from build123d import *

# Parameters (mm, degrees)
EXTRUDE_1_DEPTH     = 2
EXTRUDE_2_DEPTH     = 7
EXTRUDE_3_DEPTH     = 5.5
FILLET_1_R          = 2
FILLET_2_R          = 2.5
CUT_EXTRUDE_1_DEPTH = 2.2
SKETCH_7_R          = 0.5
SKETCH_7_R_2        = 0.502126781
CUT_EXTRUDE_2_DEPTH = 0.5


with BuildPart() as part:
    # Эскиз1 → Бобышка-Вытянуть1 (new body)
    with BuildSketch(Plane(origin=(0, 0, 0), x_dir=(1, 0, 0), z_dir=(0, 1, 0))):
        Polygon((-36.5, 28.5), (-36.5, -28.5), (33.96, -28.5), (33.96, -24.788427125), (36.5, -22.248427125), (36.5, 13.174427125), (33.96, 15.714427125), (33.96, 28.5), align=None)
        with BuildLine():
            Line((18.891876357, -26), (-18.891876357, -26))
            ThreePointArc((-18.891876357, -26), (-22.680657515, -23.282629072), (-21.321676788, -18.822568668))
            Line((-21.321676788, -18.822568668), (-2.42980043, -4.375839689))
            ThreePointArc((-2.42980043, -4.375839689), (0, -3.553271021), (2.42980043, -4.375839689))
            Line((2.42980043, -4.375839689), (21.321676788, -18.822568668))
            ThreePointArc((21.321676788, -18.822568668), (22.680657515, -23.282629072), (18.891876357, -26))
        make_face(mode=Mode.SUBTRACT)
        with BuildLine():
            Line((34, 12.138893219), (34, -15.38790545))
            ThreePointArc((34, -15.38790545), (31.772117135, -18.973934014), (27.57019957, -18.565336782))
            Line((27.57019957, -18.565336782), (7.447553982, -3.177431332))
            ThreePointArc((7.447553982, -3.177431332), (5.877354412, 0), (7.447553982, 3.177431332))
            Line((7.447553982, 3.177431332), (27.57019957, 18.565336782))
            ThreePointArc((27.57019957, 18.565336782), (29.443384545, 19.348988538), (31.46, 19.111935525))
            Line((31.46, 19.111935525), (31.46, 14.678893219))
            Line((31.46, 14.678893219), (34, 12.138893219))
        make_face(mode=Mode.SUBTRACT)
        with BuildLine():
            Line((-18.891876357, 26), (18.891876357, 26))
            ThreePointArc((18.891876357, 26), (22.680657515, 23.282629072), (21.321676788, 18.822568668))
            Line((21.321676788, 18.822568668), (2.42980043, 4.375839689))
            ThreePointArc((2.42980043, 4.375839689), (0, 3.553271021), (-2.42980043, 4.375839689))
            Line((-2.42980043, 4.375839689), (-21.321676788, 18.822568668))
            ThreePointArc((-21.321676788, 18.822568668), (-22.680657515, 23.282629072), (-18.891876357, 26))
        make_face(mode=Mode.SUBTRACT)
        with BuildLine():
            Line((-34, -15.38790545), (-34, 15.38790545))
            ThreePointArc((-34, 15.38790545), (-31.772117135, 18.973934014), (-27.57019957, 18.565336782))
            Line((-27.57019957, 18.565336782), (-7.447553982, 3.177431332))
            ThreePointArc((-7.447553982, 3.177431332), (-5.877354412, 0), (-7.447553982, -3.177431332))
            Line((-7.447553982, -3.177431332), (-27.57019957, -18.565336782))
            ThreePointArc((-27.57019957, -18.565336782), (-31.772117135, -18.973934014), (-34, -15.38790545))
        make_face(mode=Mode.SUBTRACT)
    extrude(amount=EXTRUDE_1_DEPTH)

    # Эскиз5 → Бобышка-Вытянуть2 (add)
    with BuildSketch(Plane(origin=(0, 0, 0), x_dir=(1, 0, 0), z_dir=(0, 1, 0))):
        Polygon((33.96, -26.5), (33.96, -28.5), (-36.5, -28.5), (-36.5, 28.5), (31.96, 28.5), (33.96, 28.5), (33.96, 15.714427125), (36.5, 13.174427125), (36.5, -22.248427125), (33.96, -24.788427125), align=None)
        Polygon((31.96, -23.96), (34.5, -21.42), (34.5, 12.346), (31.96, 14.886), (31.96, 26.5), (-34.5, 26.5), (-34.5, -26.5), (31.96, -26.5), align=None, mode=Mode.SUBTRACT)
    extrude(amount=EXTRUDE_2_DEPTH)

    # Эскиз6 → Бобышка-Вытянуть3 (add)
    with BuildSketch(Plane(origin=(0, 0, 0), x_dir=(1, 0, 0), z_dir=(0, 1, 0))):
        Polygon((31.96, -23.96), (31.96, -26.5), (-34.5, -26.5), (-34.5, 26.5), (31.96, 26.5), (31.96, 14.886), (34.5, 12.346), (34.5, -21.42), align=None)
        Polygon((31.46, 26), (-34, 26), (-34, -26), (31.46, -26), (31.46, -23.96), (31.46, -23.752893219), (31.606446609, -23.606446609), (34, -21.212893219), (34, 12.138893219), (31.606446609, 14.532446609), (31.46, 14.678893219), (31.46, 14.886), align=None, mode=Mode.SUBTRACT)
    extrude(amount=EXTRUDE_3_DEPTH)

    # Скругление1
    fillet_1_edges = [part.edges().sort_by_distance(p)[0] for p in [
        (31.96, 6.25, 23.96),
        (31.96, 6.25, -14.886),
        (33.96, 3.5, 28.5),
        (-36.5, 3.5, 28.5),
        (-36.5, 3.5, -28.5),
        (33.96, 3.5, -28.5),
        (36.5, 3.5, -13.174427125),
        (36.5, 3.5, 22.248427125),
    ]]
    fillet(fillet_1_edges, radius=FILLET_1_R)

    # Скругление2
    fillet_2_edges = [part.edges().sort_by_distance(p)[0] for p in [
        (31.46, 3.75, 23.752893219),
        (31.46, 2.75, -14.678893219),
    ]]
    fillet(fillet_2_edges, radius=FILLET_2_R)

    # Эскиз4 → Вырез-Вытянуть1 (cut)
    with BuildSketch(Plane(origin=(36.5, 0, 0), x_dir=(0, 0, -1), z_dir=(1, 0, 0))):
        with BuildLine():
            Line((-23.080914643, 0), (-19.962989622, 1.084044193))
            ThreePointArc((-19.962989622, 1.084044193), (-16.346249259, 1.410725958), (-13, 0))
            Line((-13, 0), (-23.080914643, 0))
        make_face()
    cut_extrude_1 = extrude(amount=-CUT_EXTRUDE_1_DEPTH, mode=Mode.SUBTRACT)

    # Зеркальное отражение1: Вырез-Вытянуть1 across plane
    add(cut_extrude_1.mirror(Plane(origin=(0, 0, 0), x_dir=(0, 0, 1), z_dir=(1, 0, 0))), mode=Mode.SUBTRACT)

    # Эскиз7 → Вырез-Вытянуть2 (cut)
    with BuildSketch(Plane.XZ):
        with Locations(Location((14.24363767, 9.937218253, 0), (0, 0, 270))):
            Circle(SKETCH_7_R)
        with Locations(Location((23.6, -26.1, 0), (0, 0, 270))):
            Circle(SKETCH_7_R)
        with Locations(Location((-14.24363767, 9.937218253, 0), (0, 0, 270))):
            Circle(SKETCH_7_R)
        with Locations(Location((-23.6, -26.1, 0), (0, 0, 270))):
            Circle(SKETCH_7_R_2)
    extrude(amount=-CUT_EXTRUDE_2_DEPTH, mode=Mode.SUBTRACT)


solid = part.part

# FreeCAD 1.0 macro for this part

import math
import FreeCAD as App
import Part
import Sketcher
Q = App.Units.Quantity


def edges_at(feature, points):
    """Names of the edges that pass closest to the given points."""
    edges = feature.Shape.Edges
    near = lambda p: min(range(len(edges)), key=lambda i: edges[i].distToShape(Part.Vertex(*p))[0])
    return sorted({f"Edge{near(p) + 1}" for p in points})


def add_polygon(sketch, points):
    """Adds a closed chain of lines whose ends are joined by coincident constraints."""
    first, n = sketch.GeometryCount, len(points)
    for a, b in zip(points, points[1:] + points[:1]):
        sketch.addGeometry(Part.LineSegment(App.Vector(*a, 0), App.Vector(*b, 0)), False)
    for i in range(n):
        sketch.addConstraint(Sketcher.Constraint("Coincident", first + i, 2, first + (i + 1) % n, 1))

doc = App.newDocument("Part")
params = doc.addObject("Spreadsheet::Sheet", "Params")
for row, (alias, value) in enumerate([
    ("sketch1_radius", "4 mm"),
    ("sketch1_height", "57 mm"),
    ("sketch1_width", "70.46 mm"),
    ("pad1_length", "2 mm"),
    ("sketch2_height", "57 mm"),
    ("sketch2_height2", "53 mm"),
    ("sketch2_width", "70.46 mm"),
    ("sketch2_height3", "2.54 mm"),
    ("pad2_length", "7 mm"),
    ("sketch3_height", "53 mm"),
    ("sketch3_height2", "52 mm"),
    ("sketch3_width", "66.46 mm"),
    ("sketch3_width2", "65.46 mm"),
    ("sketch3_height3", "2.54 mm"),
    ("pad3_length", "5.5 mm"),
    ("fillet_radius", "2 mm"),
    ("fillet2_radius", "2.5 mm"),
    ("sketch4_radius", "7.5 mm"),
    ("pocket1_length", "2.2 mm"),
    ("sketch5_diameter", "1 mm"),
    ("pocket2_length", "0.5 mm"),
], start=1):
    params.set(f"A{row}", alias)
    params.set(f"B{row}", "=" + value)
    params.setAlias(f"B{row}", alias)

body = doc.addObject("PartDesign::Body", "Body")

sketch1 = doc.addObject("Sketcher::SketchObject", "Sketch")
body.addObject(sketch1)
sketch1.AttachmentSupport = (doc.XZ_Plane, [""])
sketch1.MapMode = "FlatFace"
add_polygon(sketch1, [(-36.5, -28.5), (-36.5, 28.5), (34, 28.5), (34, 24.8), (36.5, 22.2), (36.5, -13.2), (34, -15.7), (34, -28.5)])
sketch1.addGeometry(Part.ArcOfCircle(Part.Circle(App.Vector(18.9, 22, 0), App.Vector(0, 0, 1), 4), math.radians(-53), math.radians(90)), False)
sketch1.addGeometry(Part.LineSegment(App.Vector(18.9, 26, 0), App.Vector(-18.9, 26, 0)), False)
sketch1.addGeometry(Part.ArcOfCircle(Part.Circle(App.Vector(-18.9, 22, 0), App.Vector(0, 0, 1), 4), math.radians(90), math.radians(233)), False)
sketch1.addGeometry(Part.LineSegment(App.Vector(-21.3, 18.8, 0), App.Vector(-2.4, 4.4, 0)), False)
sketch1.addGeometry(Part.ArcOfCircle(Part.Circle(App.Vector(0, 7.6, 0), App.Vector(0, 0, 1), 4), math.radians(-127), math.radians(-53)), False)
sketch1.addGeometry(Part.LineSegment(App.Vector(2.4, 4.4, 0), App.Vector(21.3, 18.8, 0)), False)
sketch1.addGeometry(Part.LineSegment(App.Vector(31.5, -14.7, 0), App.Vector(34, -12.1, 0)), False)
sketch1.addGeometry(Part.LineSegment(App.Vector(34, -12.1, 0), App.Vector(34, 15.4, 0)), False)
sketch1.addGeometry(Part.ArcOfCircle(Part.Circle(App.Vector(30, 15.4, 0), App.Vector(0, 0, 1), 4), math.radians(0), math.radians(127)), False)
sketch1.addGeometry(Part.LineSegment(App.Vector(27.6, 18.6, 0), App.Vector(7.4, 3.2, 0)), False)
sketch1.addGeometry(Part.ArcOfCircle(Part.Circle(App.Vector(9.9, 0, 0), App.Vector(0, 0, 1), 4), math.radians(127), math.radians(233)), False)
sketch1.addGeometry(Part.LineSegment(App.Vector(7.4, -3.2, 0), App.Vector(27.6, -18.6, 0)), False)
sketch1.addGeometry(Part.ArcOfCircle(Part.Circle(App.Vector(30, -15.4, 0), App.Vector(0, 0, 1), 4), math.radians(-127), math.radians(-69)), False)
sketch1.addGeometry(Part.LineSegment(App.Vector(31.5, -19.1, 0), App.Vector(31.5, -14.7, 0)), False)
sketch1.addGeometry(Part.ArcOfCircle(Part.Circle(App.Vector(-30, 15.4, 0), App.Vector(0, 0, 1), 4), math.radians(53), math.radians(180)), False)
sketch1.addGeometry(Part.LineSegment(App.Vector(-34, 15.4, 0), App.Vector(-34, -15.4, 0)), False)
sketch1.addGeometry(Part.ArcOfCircle(Part.Circle(App.Vector(-30, -15.4, 0), App.Vector(0, 0, 1), 4), math.radians(180), math.radians(307)), False)
sketch1.addGeometry(Part.LineSegment(App.Vector(-27.6, -18.6, 0), App.Vector(-7.4, -3.2, 0)), False)
sketch1.addGeometry(Part.ArcOfCircle(Part.Circle(App.Vector(-9.9, 0, 0), App.Vector(0, 0, 1), 4), math.radians(-53), math.radians(53)), False)
sketch1.addGeometry(Part.LineSegment(App.Vector(-7.4, 3.2, 0), App.Vector(-27.6, 18.6, 0)), False)
sketch1.addGeometry(Part.ArcOfCircle(Part.Circle(App.Vector(-18.9, -22, 0), App.Vector(0, 0, 1), 4), math.radians(127), math.radians(270)), False)
sketch1.addGeometry(Part.LineSegment(App.Vector(-18.9, -26, 0), App.Vector(18.9, -26, 0)), False)
sketch1.addGeometry(Part.ArcOfCircle(Part.Circle(App.Vector(18.9, -22, 0), App.Vector(0, 0, 1), 4), math.radians(-90), math.radians(53)), False)
sketch1.addGeometry(Part.LineSegment(App.Vector(21.3, -18.8, 0), App.Vector(2.4, -4.4, 0)), False)
sketch1.addGeometry(Part.ArcOfCircle(Part.Circle(App.Vector(0, -7.6, 0), App.Vector(0, 0, 1), 4), math.radians(53), math.radians(127)), False)
sketch1.addGeometry(Part.LineSegment(App.Vector(-2.4, -4.4, 0), App.Vector(-21.3, -18.8, 0)), False)
sketch1.addConstraint(Sketcher.Constraint("Tangent", 8, 2, 9, 1))
sketch1.addConstraint(Sketcher.Constraint("Tangent", 9, 2, 10, 1))
sketch1.addConstraint(Sketcher.Constraint("Tangent", 10, 2, 11, 1))
sketch1.addConstraint(Sketcher.Constraint("Tangent", 11, 2, 12, 1))
sketch1.addConstraint(Sketcher.Constraint("Tangent", 12, 2, 13, 1))
sketch1.addConstraint(Sketcher.Constraint("Tangent", 13, 2, 8, 1))
sketch1.addConstraint(Sketcher.Constraint("Coincident", 14, 2, 15, 1))
sketch1.addConstraint(Sketcher.Constraint("Tangent", 15, 2, 16, 1))
sketch1.addConstraint(Sketcher.Constraint("Tangent", 16, 2, 17, 1))
sketch1.addConstraint(Sketcher.Constraint("Tangent", 17, 2, 18, 1))
sketch1.addConstraint(Sketcher.Constraint("Tangent", 18, 2, 19, 1))
sketch1.addConstraint(Sketcher.Constraint("Tangent", 19, 2, 20, 1))
sketch1.addConstraint(Sketcher.Constraint("Coincident", 20, 2, 21, 1))
sketch1.addConstraint(Sketcher.Constraint("Coincident", 21, 2, 14, 1))
sketch1.addConstraint(Sketcher.Constraint("Tangent", 22, 2, 23, 1))
sketch1.addConstraint(Sketcher.Constraint("Tangent", 23, 2, 24, 1))
sketch1.addConstraint(Sketcher.Constraint("Tangent", 24, 2, 25, 1))
sketch1.addConstraint(Sketcher.Constraint("Tangent", 25, 2, 26, 1))
sketch1.addConstraint(Sketcher.Constraint("Tangent", 26, 2, 27, 1))
sketch1.addConstraint(Sketcher.Constraint("Tangent", 27, 2, 22, 1))
sketch1.addConstraint(Sketcher.Constraint("Tangent", 28, 2, 29, 1))
sketch1.addConstraint(Sketcher.Constraint("Tangent", 29, 2, 30, 1))
sketch1.addConstraint(Sketcher.Constraint("Tangent", 30, 2, 31, 1))
sketch1.addConstraint(Sketcher.Constraint("Tangent", 31, 2, 32, 1))
sketch1.addConstraint(Sketcher.Constraint("Tangent", 32, 2, 33, 1))
sketch1.addConstraint(Sketcher.Constraint("Tangent", 33, 2, 28, 1))
sketch1.addConstraint(Sketcher.Constraint("Vertical", 0))
sketch1.addConstraint(Sketcher.Constraint("Horizontal", 1))
sketch1.addConstraint(Sketcher.Constraint("Vertical", 2))
sketch1.addConstraint(Sketcher.Constraint("Vertical", 4))
sketch1.addConstraint(Sketcher.Constraint("Vertical", 6))
sketch1.addConstraint(Sketcher.Constraint("Horizontal", 7))
sketch1.addConstraint(Sketcher.Constraint("Horizontal", 9))
sketch1.addConstraint(Sketcher.Constraint("Vertical", 15))
sketch1.addConstraint(Sketcher.Constraint("Vertical", 21))
sketch1.addConstraint(Sketcher.Constraint("Vertical", 23))
sketch1.addConstraint(Sketcher.Constraint("Horizontal", 29))
sketch1.addConstraint(Sketcher.Constraint("Equal", 8, 10))
sketch1.addConstraint(Sketcher.Constraint("Equal", 10, 12))
sketch1.addConstraint(Sketcher.Constraint("Equal", 12, 16))
sketch1.addConstraint(Sketcher.Constraint("Equal", 16, 18))
sketch1.addConstraint(Sketcher.Constraint("Equal", 18, 20))
sketch1.addConstraint(Sketcher.Constraint("Equal", 20, 22))
sketch1.addConstraint(Sketcher.Constraint("Equal", 22, 24))
sketch1.addConstraint(Sketcher.Constraint("Equal", 24, 26))
sketch1.addConstraint(Sketcher.Constraint("Equal", 26, 28))
sketch1.addConstraint(Sketcher.Constraint("Equal", 28, 30))
sketch1.addConstraint(Sketcher.Constraint("Equal", 30, 32))
sketch1.addConstraint(Sketcher.Constraint("Symmetric", 20, 3, 22, 3, -1, 1))
sketch1.addConstraint(Sketcher.Constraint("Symmetric", 16, 3, 24, 3, -1, 1))
sketch1.addConstraint(Sketcher.Constraint("Symmetric", 18, 3, 26, 3, -1, 1))
sketch1.addConstraint(Sketcher.Constraint("Symmetric", 8, 3, 28, 3, -1, 1))
sketch1.addConstraint(Sketcher.Constraint("Symmetric", 12, 3, 32, 3, -1, 1))
sketch1.addConstraint(Sketcher.Constraint("Symmetric", 11, 2, 12, 2, -2))
sketch1.addConstraint(Sketcher.Constraint("Symmetric", 19, 2, 24, 2, -2))
sketch1.addConstraint(Sketcher.Constraint("Symmetric", 1, 2, 6, 2, -1))
sketch1.addConstraint(Sketcher.Constraint("Perpendicular", 3, 5))
sketch1.addConstraint(Sketcher.Constraint("Parallel", 5, 14))
sketch1.addConstraint(Sketcher.Constraint("Parallel", 13, 17))
sketch1.addConstraint(Sketcher.Constraint("Parallel", 27, 31))
sketch1.addConstraint(Sketcher.Constraint("Equal", 3, 5))
sketch1.addConstraint(Sketcher.Constraint("Equal", 5, 14))
sketch1.addConstraint(Sketcher.Constraint("Radius", 8, Q("4 mm")))
sketch1.addConstraint(Sketcher.Constraint("DistanceY", 0, 1, 0, 2, Q("57 mm")))
sketch1.addConstraint(Sketcher.Constraint("DistanceY", -1, 1, 8, 3, Q("22 mm")))
sketch1.addConstraint(Sketcher.Constraint("DistanceX", -1, 1, 16, 3, Q("30 mm")))
sketch1.addConstraint(Sketcher.Constraint("DistanceX", 1, 1, 1, 2, Q("70.46 mm")))
sketch1.addConstraint(Sketcher.Constraint("DistanceX", 0, 2, -1, 1, Q("36.5 mm")))
sketch1.addConstraint(Sketcher.Constraint("DistanceX", -1, 1, 3, 2, Q("36.5 mm")))
sketch1.addConstraint(Sketcher.Constraint("DistanceY", 15, 1, 15, 2, Q("27.526799 mm")))
sketch1.addConstraint(Sketcher.Constraint("DistanceY", 23, 2, 23, 1, Q("30.775811 mm")))
sketch1.addConstraint(Sketcher.Constraint("DistanceX", 11, 2, -1, 1, Q("2.4298 mm")))
sketch1.addConstraint(Sketcher.Constraint("DistanceX", 9, 2, 9, 1, Q("37.783753 mm")))
sketch1.addConstraint(Sketcher.Constraint("DistanceY", 2, 2, 2, 1, Q("3.711573 mm")))
sketch1.addConstraint(Sketcher.Constraint("DistanceY", 4, 2, 4, 1, Q("35.422854 mm")))
sketch1.setExpression("Constraints[70]", "Params.sketch1_radius")
sketch1.setExpression("Constraints[71]", "Params.sketch1_height")
sketch1.setExpression("Constraints[74]", "Params.sketch1_width")
pad1 = doc.addObject("PartDesign::Pad", "Pad")
body.addObject(pad1)
pad1.Profile = sketch1
pad1.setExpression("Length", "Params.pad1_length")
pad1.Reversed = True

sketch2 = doc.addObject("Sketcher::SketchObject", "Sketch001")
body.addObject(sketch2)
sketch2.AttachmentSupport = (doc.XZ_Plane, [""])
sketch2.MapMode = "FlatFace"
add_polygon(sketch2, [(34, 28.5), (34, 24.8), (36.5, 22.2), (36.5, -13.2), (34, -15.7), (34, -28.5), (-36.5, -28.5), (-36.5, 28.5)])
add_polygon(sketch2, [(32, 24), (32, 26.5), (-34.5, 26.5), (-34.5, -26.5), (32, -26.5), (32, -14.9), (34.5, -12.3), (34.5, 21.4)])
sketch2.addConstraint(Sketcher.Constraint("Vertical", 0))
sketch2.addConstraint(Sketcher.Constraint("Vertical", 2))
sketch2.addConstraint(Sketcher.Constraint("Vertical", 4))
sketch2.addConstraint(Sketcher.Constraint("Horizontal", 5))
sketch2.addConstraint(Sketcher.Constraint("Vertical", 6))
sketch2.addConstraint(Sketcher.Constraint("Horizontal", 7))
sketch2.addConstraint(Sketcher.Constraint("Vertical", 8))
sketch2.addConstraint(Sketcher.Constraint("Horizontal", 9))
sketch2.addConstraint(Sketcher.Constraint("Vertical", 10))
sketch2.addConstraint(Sketcher.Constraint("Horizontal", 11))
sketch2.addConstraint(Sketcher.Constraint("Vertical", 12))
sketch2.addConstraint(Sketcher.Constraint("Vertical", 14))
sketch2.addConstraint(Sketcher.Constraint("Symmetric", 4, 2, 7, 2, -1))
sketch2.addConstraint(Sketcher.Constraint("Symmetric", 8, 2, 11, 2, -1))
sketch2.addConstraint(Sketcher.Constraint("Perpendicular", 1, 3))
sketch2.addConstraint(Sketcher.Constraint("Parallel", 3, 13))
sketch2.addConstraint(Sketcher.Constraint("Perpendicular", 13, 15))
sketch2.addConstraint(Sketcher.Constraint("Equal", 1, 3))
sketch2.addConstraint(Sketcher.Constraint("Equal", 3, 13))
sketch2.addConstraint(Sketcher.Constraint("DistanceY", 6, 1, 6, 2, Q("57 mm")))
sketch2.addConstraint(Sketcher.Constraint("DistanceY", 10, 2, 10, 1, Q("53 mm")))
sketch2.addConstraint(Sketcher.Constraint("DistanceX", 5, 2, 2, 2, Q("73 mm")))
sketch2.addConstraint(Sketcher.Constraint("DistanceX", 8, 2, 0, 2, Q("2 mm")))
sketch2.addConstraint(Sketcher.Constraint("DistanceX", 6, 2, 9, 2, Q("2 mm")))
sketch2.addConstraint(Sketcher.Constraint("DistanceX", 5, 2, 5, 1, Q("70.46 mm")))
sketch2.addConstraint(Sketcher.Constraint("DistanceY", 8, 1, 8, 2, Q("2.54 mm")))
sketch2.addConstraint(Sketcher.Constraint("DistanceX", -1, 1, 1, 2, Q("36.5 mm")))
sketch2.addConstraint(Sketcher.Constraint("DistanceY", 12, 1, 12, 2, Q("11.614 mm")))
sketch2.addConstraint(Sketcher.Constraint("DistanceY", 0, 2, 0, 1, Q("3.711573 mm")))
sketch2.addConstraint(Sketcher.Constraint("DistanceY", 2, 2, 2, 1, Q("35.422854 mm")))
sketch2.setExpression("Constraints[35]", "Params.sketch2_height")
sketch2.setExpression("Constraints[36]", "Params.sketch2_height2")
sketch2.setExpression("Constraints[40]", "Params.sketch2_width")
sketch2.setExpression("Constraints[41]", "Params.sketch2_height3")
pad2 = doc.addObject("PartDesign::Pad", "Pad001")
body.addObject(pad2)
pad2.Profile = sketch2
pad2.setExpression("Length", "Params.pad2_length")
pad2.Reversed = True

sketch3 = doc.addObject("Sketcher::SketchObject", "Sketch002")
body.addObject(sketch3)
sketch3.AttachmentSupport = (doc.XZ_Plane, [""])
sketch3.MapMode = "FlatFace"
add_polygon(sketch3, [(31.96, 26.5), (31.96, 23.96), (34.5, 21.42), (34.5, -12.35), (31.96, -14.89), (31.96, -26.5), (-34.5, -26.5), (-34.5, 26.5)])
add_polygon(sketch3, [(31.46, -26), (31.46, -14.68), (31.61, -14.53), (34, -12.14), (34, 21.21), (31.61, 23.61), (31.46, 23.75), (31.46, 26), (-34, 26), (-34, -26)])
sketch3.addConstraint(Sketcher.Constraint("Vertical", 0))
sketch3.addConstraint(Sketcher.Constraint("Vertical", 2))
sketch3.addConstraint(Sketcher.Constraint("Vertical", 4))
sketch3.addConstraint(Sketcher.Constraint("Horizontal", 5))
sketch3.addConstraint(Sketcher.Constraint("Vertical", 6))
sketch3.addConstraint(Sketcher.Constraint("Horizontal", 7))
sketch3.addConstraint(Sketcher.Constraint("Vertical", 8))
sketch3.addConstraint(Sketcher.Constraint("Vertical", 11))
sketch3.addConstraint(Sketcher.Constraint("Vertical", 14))
sketch3.addConstraint(Sketcher.Constraint("Horizontal", 15))
sketch3.addConstraint(Sketcher.Constraint("Vertical", 16))
sketch3.addConstraint(Sketcher.Constraint("Horizontal", 17))
sketch3.addConstraint(Sketcher.Constraint("Symmetric", 4, 2, 7, 2, -1))
sketch3.addConstraint(Sketcher.Constraint("Symmetric", 14, 2, 17, 2, -1))
sketch3.addConstraint(Sketcher.Constraint("Perpendicular", 1, 3))
sketch3.addConstraint(Sketcher.Constraint("Parallel", 3, 9))
sketch3.addConstraint(Sketcher.Constraint("Parallel", 9, 10))
sketch3.addConstraint(Sketcher.Constraint("Perpendicular", 10, 12))
sketch3.addConstraint(Sketcher.Constraint("Parallel", 12, 13))
sketch3.addConstraint(Sketcher.Constraint("Vertical", 9, 2, 12, 2))
sketch3.addConstraint(Sketcher.Constraint("Equal", 1, 3))
sketch3.addConstraint(Sketcher.Constraint("DistanceY", 6, 1, 6, 2, Q("53 mm")))
sketch3.addConstraint(Sketcher.Constraint("DistanceY", 16, 2, 16, 1, Q("52 mm")))
sketch3.addConstraint(Sketcher.Constraint("DistanceX", -1, 1, 10, 2, Q("34 mm")))
sketch3.addConstraint(Sketcher.Constraint("DistanceX", 15, 2, -1, 1, Q("34 mm")))
sketch3.addConstraint(Sketcher.Constraint("DistanceX", 5, 2, 2, 2, Q("69 mm")))
sketch3.addConstraint(Sketcher.Constraint("DistanceX", 5, 2, 5, 1, Q("66.46 mm")))
sketch3.addConstraint(Sketcher.Constraint("DistanceX", 15, 2, 15, 1, Q("65.46 mm")))
sketch3.addConstraint(Sketcher.Constraint("DistanceY", 0, 2, 0, 1, Q("2.54 mm")))
sketch3.addConstraint(Sketcher.Constraint("DistanceX", -1, 1, 1, 2, Q("34.5 mm")))
sketch3.addConstraint(Sketcher.Constraint("DistanceY", 2, 2, 2, 1, Q("33.766 mm")))
sketch3.addConstraint(Sketcher.Constraint("DistanceY", 8, 1, 8, 2, Q("11.321107 mm")))
sketch3.addConstraint(Sketcher.Constraint("DistanceY", 11, 1, 11, 2, Q("33.351786 mm")))
sketch3.addConstraint(Sketcher.Constraint("DistanceY", 10, 2, 12, 2, Q("35.74534 mm")))
sketch3.setExpression("Constraints[39]", "Params.sketch3_height")
sketch3.setExpression("Constraints[40]", "Params.sketch3_height2")
sketch3.setExpression("Constraints[44]", "Params.sketch3_width")
sketch3.setExpression("Constraints[45]", "Params.sketch3_width2")
sketch3.setExpression("Constraints[46]", "Params.sketch3_height3")
pad3 = doc.addObject("PartDesign::Pad", "Pad002")
body.addObject(pad3)
pad3.Profile = sketch3
pad3.setExpression("Length", "Params.pad3_length")
pad3.Reversed = True
doc.recompute()

fillet = doc.addObject("PartDesign::Fillet", "Fillet")
body.addObject(fillet)
fillet.Base = (pad3, edges_at(pad3, [
    (31.96, 6.25, 23.96),
    (31.96, 6.25, -14.886),
    (33.96, 3.5, 28.5),
    (-36.5, 3.5, 28.5),
    (-36.5, 3.5, -28.5),
    (33.96, 3.5, -28.5),
    (36.5, 3.5, -13.174),
    (36.5, 3.5, 22.248),
]))
fillet.setExpression("Radius", "Params.fillet_radius")
doc.recompute()

fillet2 = doc.addObject("PartDesign::Fillet", "Fillet001")
body.addObject(fillet2)
fillet2.Base = (fillet, edges_at(fillet, [(31.46, 3.75, 23.753), (31.46, 3.75, -14.679)]))
fillet2.setExpression("Radius", "Params.fillet2_radius")

sketch4 = doc.addObject("Sketcher::SketchObject", "Sketch003")
body.addObject(sketch4)
sketch4.AttachmentSupport = (doc.YZ_Plane, [""])
sketch4.MapMode = "FlatFace"
sketch4.AttachmentOffset = App.Placement(App.Vector(0, 0, 36.5), App.Rotation())
sketch4.addGeometry(Part.LineSegment(App.Vector(1.1, 20, 0), App.Vector(0, 23.1, 0)), False)
sketch4.addGeometry(Part.LineSegment(App.Vector(0, 23.1, 0), App.Vector(0, 13, 0)), False)
sketch4.addGeometry(Part.ArcOfCircle(Part.Circle(App.Vector(-6, 17.5, 0), App.Vector(0, 0, 1), 7.5), math.radians(-37), math.radians(19)), False)
sketch4.addConstraint(Sketcher.Constraint("Coincident", 0, 2, 1, 1))
sketch4.addConstraint(Sketcher.Constraint("Coincident", 1, 2, 2, 1))
sketch4.addConstraint(Sketcher.Constraint("Tangent", 2, 2, 0, 1))
sketch4.addConstraint(Sketcher.Constraint("Vertical", 1))
sketch4.addConstraint(Sketcher.Constraint("PointOnObject", 0, 2, -2))
sketch4.addConstraint(Sketcher.Constraint("Radius", 2, Q("7.5 mm")))
sketch4.addConstraint(Sketcher.Constraint("DistanceX", 2, 3, -1, 1, Q("6 mm")))
sketch4.addConstraint(Sketcher.Constraint("DistanceY", -1, 1, 1, 2, Q("13 mm")))
sketch4.addConstraint(Sketcher.Constraint("Distance", 0, Q("3.301001 mm")))
sketch4.setExpression("Constraints[5]", "Params.sketch4_radius")
pocket1 = doc.addObject("PartDesign::Pocket", "Pocket")
body.addObject(pocket1)
pocket1.Profile = sketch4
pocket1.setExpression("Length", "Params.pocket1_length")
doc.recompute()

mirrored = doc.addObject("PartDesign::Mirrored", "Mirrored")
body.addObject(mirrored)
mirrored.Originals = [pocket1]
mirrored.MirrorPlane = (doc.YZ_Plane, [""])
body.Tip = mirrored

sketch5 = doc.addObject("Sketcher::SketchObject", "Sketch004")
body.addObject(sketch5)
sketch5.AttachmentSupport = (doc.XZ_Plane, [""])
sketch5.MapMode = "FlatFace"
sketch5.addGeometry(Part.Circle(App.Vector(14.2, 9.9, 0), App.Vector(0, 0, 1), 0.5), False)
sketch5.addGeometry(Part.Circle(App.Vector(23.6, -26.1, 0), App.Vector(0, 0, 1), 0.5), False)
sketch5.addGeometry(Part.Circle(App.Vector(-14.2, 9.9, 0), App.Vector(0, 0, 1), 0.5), False)
sketch5.addGeometry(Part.Circle(App.Vector(-23.6, -26.1, 0), App.Vector(0, 0, 1), 0.5), False)
sketch5.addConstraint(Sketcher.Constraint("Equal", 0, 1))
sketch5.addConstraint(Sketcher.Constraint("Equal", 1, 2))
sketch5.addConstraint(Sketcher.Constraint("Symmetric", 0, 3, 2, 3, -2))
sketch5.addConstraint(Sketcher.Constraint("Symmetric", 1, 3, 3, 3, -2))
sketch5.addConstraint(Sketcher.Constraint("Diameter", 0, Q("1 mm")))
sketch5.addConstraint(Sketcher.Constraint("DistanceX", -1, 1, 1, 3, Q("23.6 mm")))
sketch5.addConstraint(Sketcher.Constraint("DistanceY", 1, 3, -1, 1, Q("26.1 mm")))
sketch5.addConstraint(Sketcher.Constraint("Diameter", 3, Q("1.004254 mm")))
sketch5.addConstraint(Sketcher.Constraint("DistanceY", -1, 1, 0, 3, Q("9.937218 mm")))
sketch5.addConstraint(Sketcher.Constraint("DistanceX", -1, 1, 0, 3, Q("14.243638 mm")))
sketch5.setExpression("Constraints[4]", "Params.sketch5_diameter")
pocket2 = doc.addObject("PartDesign::Pocket", "Pocket001")
body.addObject(pocket2)
pocket2.Profile = sketch5
pocket2.setExpression("Length", "Params.pocket2_length")

doc.recompute()
